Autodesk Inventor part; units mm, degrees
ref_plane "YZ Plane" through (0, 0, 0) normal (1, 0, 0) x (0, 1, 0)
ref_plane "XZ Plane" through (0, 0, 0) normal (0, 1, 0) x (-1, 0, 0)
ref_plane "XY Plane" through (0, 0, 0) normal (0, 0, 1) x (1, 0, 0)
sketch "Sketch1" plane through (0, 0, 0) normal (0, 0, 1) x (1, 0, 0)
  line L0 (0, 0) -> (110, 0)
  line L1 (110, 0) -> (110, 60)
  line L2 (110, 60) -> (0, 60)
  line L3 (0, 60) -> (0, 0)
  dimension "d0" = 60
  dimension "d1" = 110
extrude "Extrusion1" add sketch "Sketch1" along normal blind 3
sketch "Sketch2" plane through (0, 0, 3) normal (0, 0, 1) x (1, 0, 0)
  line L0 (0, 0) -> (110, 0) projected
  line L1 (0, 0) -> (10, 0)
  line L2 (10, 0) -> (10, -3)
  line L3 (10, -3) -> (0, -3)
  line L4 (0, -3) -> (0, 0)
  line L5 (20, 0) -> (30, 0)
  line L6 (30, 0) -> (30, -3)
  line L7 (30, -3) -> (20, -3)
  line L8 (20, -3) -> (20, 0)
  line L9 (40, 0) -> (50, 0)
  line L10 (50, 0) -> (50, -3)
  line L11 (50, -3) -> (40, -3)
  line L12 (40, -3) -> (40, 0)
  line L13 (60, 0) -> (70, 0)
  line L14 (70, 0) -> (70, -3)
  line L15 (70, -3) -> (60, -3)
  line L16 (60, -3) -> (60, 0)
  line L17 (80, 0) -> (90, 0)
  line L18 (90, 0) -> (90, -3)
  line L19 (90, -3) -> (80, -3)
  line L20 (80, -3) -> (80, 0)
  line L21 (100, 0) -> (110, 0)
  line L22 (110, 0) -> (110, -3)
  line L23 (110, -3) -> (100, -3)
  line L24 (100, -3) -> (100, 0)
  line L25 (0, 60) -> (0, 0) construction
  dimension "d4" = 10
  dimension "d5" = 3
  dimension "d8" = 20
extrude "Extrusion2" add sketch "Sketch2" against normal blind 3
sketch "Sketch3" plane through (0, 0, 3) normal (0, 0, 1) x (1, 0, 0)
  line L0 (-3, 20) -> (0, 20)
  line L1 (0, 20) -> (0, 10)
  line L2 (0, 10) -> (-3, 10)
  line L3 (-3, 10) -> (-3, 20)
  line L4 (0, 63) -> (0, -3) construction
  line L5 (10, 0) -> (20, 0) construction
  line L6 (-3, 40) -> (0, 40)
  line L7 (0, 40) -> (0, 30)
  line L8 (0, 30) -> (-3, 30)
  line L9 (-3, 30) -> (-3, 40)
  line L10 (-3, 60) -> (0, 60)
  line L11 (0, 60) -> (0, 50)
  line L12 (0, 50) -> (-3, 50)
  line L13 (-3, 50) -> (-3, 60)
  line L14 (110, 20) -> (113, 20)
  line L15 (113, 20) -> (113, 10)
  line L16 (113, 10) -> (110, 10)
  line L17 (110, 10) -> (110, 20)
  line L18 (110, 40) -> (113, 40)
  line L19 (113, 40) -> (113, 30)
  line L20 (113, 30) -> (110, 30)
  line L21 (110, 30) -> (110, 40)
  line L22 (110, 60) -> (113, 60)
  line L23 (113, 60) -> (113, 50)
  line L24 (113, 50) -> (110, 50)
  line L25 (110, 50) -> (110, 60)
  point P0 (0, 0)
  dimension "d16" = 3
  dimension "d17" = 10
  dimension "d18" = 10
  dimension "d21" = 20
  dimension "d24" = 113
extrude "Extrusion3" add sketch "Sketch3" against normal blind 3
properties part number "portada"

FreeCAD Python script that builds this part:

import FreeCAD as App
import Part
import Sketcher

doc = App.newDocument("Part")
body = doc.addObject("PartDesign::Body", "Body")

sketch1 = doc.addObject("Sketcher::SketchObject", "Sketch")
body.addObject(sketch1)
sketch1.AttachmentSupport = (doc.XY_Plane, [""])
sketch1.MapMode = "FlatFace"
sketch1.addGeometry([
    Part.LineSegment(App.Vector(0, 60, 0), App.Vector(0, 0, 0)),
    Part.LineSegment(App.Vector(0, 0, 0), App.Vector(110, 0, 0)),
    Part.LineSegment(App.Vector(110, 0, 0), App.Vector(110, 60, 0)),
    Part.LineSegment(App.Vector(110, 60, 0), App.Vector(0, 60, 0)),
], False)
sketch1.addConstraint([
    Sketcher.Constraint("Coincident", 0, 2, 1, 1),
    Sketcher.Constraint("Coincident", 1, 2, 2, 1),
    Sketcher.Constraint("Coincident", 2, 2, 3, 1),
    Sketcher.Constraint("Coincident", 3, 2, 0, 1),
    Sketcher.Constraint("Vertical", 0),
    Sketcher.Constraint("Horizontal", 1),
    Sketcher.Constraint("Vertical", 2),
    Sketcher.Constraint("Horizontal", 3),
    Sketcher.Constraint("Coincident", 0, 2, -1, 1),
    Sketcher.Constraint("DistanceX", 1, 1, 1, 2, 110.0),
    Sketcher.Constraint("DistanceY", 0, 2, 0, 1, 60.0),
])
pad1 = doc.addObject("PartDesign::Pad", "Pad")
body.addObject(pad1)
pad1.Profile = sketch1
pad1.Length = 3

sketch2 = doc.addObject("Sketcher::SketchObject", "Sketch001")
body.addObject(sketch2)
sketch2.AttachmentSupport = (doc.XY_Plane, [""])
sketch2.MapMode = "FlatFace"
sketch2.AttachmentOffset = App.Placement(App.Vector(0, 0, 3), App.Rotation())
sketch2.addGeometry([
    Part.LineSegment(App.Vector(110, 0, 0), App.Vector(100, 0, 0)),
    Part.LineSegment(App.Vector(100, 0, 0), App.Vector(100, -3, 0)),
    Part.LineSegment(App.Vector(100, -3, 0), App.Vector(110, -3, 0)),
    Part.LineSegment(App.Vector(110, -3, 0), App.Vector(110, 0, 0)),
    Part.LineSegment(App.Vector(90, 0, 0), App.Vector(80, 0, 0)),
    Part.LineSegment(App.Vector(80, 0, 0), App.Vector(80, -3, 0)),
    Part.LineSegment(App.Vector(80, -3, 0), App.Vector(90, -3, 0)),
    Part.LineSegment(App.Vector(90, -3, 0), App.Vector(90, 0, 0)),
    Part.LineSegment(App.Vector(70, 0, 0), App.Vector(60, 0, 0)),
    Part.LineSegment(App.Vector(60, 0, 0), App.Vector(60, -3, 0)),
    Part.LineSegment(App.Vector(60, -3, 0), App.Vector(70, -3, 0)),
    Part.LineSegment(App.Vector(70, -3, 0), App.Vector(70, 0, 0)),
    Part.LineSegment(App.Vector(50, 0, 0), App.Vector(40, 0, 0)),
    Part.LineSegment(App.Vector(40, 0, 0), App.Vector(40, -3, 0)),
    Part.LineSegment(App.Vector(40, -3, 0), App.Vector(50, -3, 0)),
    Part.LineSegment(App.Vector(50, -3, 0), App.Vector(50, 0, 0)),
    Part.LineSegment(App.Vector(30, 0, 0), App.Vector(20, 0, 0)),
    Part.LineSegment(App.Vector(20, 0, 0), App.Vector(20, -3, 0)),
    Part.LineSegment(App.Vector(20, -3, 0), App.Vector(30, -3, 0)),
    Part.LineSegment(App.Vector(30, -3, 0), App.Vector(30, 0, 0)),
    Part.LineSegment(App.Vector(10, 0, 0), App.Vector(0, 0, 0)),
    Part.LineSegment(App.Vector(0, 0, 0), App.Vector(0, -3, 0)),
    Part.LineSegment(App.Vector(0, -3, 0), App.Vector(10, -3, 0)),
    Part.LineSegment(App.Vector(10, -3, 0), App.Vector(10, 0, 0)),
], False)
sketch2.addConstraint([
    Sketcher.Constraint("Coincident", 0, 2, 1, 1),
    Sketcher.Constraint("Coincident", 1, 2, 2, 1),
    Sketcher.Constraint("Coincident", 2, 2, 3, 1),
    Sketcher.Constraint("Coincident", 3, 2, 0, 1),
    Sketcher.Constraint("Coincident", 4, 2, 5, 1),
    Sketcher.Constraint("Coincident", 5, 2, 6, 1),
    Sketcher.Constraint("Coincident", 6, 2, 7, 1),
    Sketcher.Constraint("Coincident", 7, 2, 4, 1),
    Sketcher.Constraint("Coincident", 8, 2, 9, 1),
    Sketcher.Constraint("Coincident", 9, 2, 10, 1),
    Sketcher.Constraint("Coincident", 10, 2, 11, 1),
    Sketcher.Constraint("Coincident", 11, 2, 8, 1),
    Sketcher.Constraint("Coincident", 12, 2, 13, 1),
    Sketcher.Constraint("Coincident", 13, 2, 14, 1),
    Sketcher.Constraint("Coincident", 14, 2, 15, 1),
    Sketcher.Constraint("Coincident", 15, 2, 12, 1),
    Sketcher.Constraint("Coincident", 16, 2, 17, 1),
    Sketcher.Constraint("Coincident", 17, 2, 18, 1),
    Sketcher.Constraint("Coincident", 18, 2, 19, 1),
    Sketcher.Constraint("Coincident", 19, 2, 16, 1),
    Sketcher.Constraint("Coincident", 20, 2, 21, 1),
    Sketcher.Constraint("Coincident", 21, 2, 22, 1),
    Sketcher.Constraint("Coincident", 22, 2, 23, 1),
    Sketcher.Constraint("Coincident", 23, 2, 20, 1),
    Sketcher.Constraint("Horizontal", 0),
    Sketcher.Constraint("Vertical", 1),
    Sketcher.Constraint("Horizontal", 2),
    Sketcher.Constraint("Vertical", 3),
    Sketcher.Constraint("Horizontal", 4),
    Sketcher.Constraint("Vertical", 5),
    Sketcher.Constraint("Horizontal", 6),
    Sketcher.Constraint("Vertical", 7),
    Sketcher.Constraint("Horizontal", 8),
    Sketcher.Constraint("Vertical", 9),
    Sketcher.Constraint("Horizontal", 10),
    Sketcher.Constraint("Vertical", 11),
    Sketcher.Constraint("Horizontal", 12),
    Sketcher.Constraint("Vertical", 13),
    Sketcher.Constraint("Horizontal", 14),
    Sketcher.Constraint("Vertical", 15),
    Sketcher.Constraint("Horizontal", 16),
    Sketcher.Constraint("Vertical", 17),
    Sketcher.Constraint("Horizontal", 18),
    Sketcher.Constraint("Vertical", 19),
    Sketcher.Constraint("Horizontal", 20),
    Sketcher.Constraint("Vertical", 21),
    Sketcher.Constraint("Horizontal", 22),
    Sketcher.Constraint("Vertical", 23),
    Sketcher.Constraint("Coincident", 20, 2, -1, 1),
    Sketcher.Constraint("PointOnObject", 0, 2, -1),
    Sketcher.Constraint("PointOnObject", 4, 2, -1),
    Sketcher.Constraint("PointOnObject", 8, 2, -1),
    Sketcher.Constraint("PointOnObject", 12, 2, -1),
    Sketcher.Constraint("PointOnObject", 16, 2, -1),
    Sketcher.Constraint("Horizontal", 2, 2, 5, 2),
    Sketcher.Constraint("Horizontal", 6, 2, 9, 2),
    Sketcher.Constraint("Horizontal", 10, 2, 13, 2),
    Sketcher.Constraint("Horizontal", 14, 2, 17, 2),
    Sketcher.Constraint("Horizontal", 18, 2, 21, 2),
    Sketcher.Constraint("Equal", 2, 4),
    Sketcher.Constraint("Equal", 6, 8),
    Sketcher.Constraint("Equal", 10, 12),
    Sketcher.Constraint("Equal", 14, 16),
    Sketcher.Constraint("Equal", 18, 20),
    Sketcher.Constraint("DistanceX", 0, 2, 0, 1, 10.0),
    Sketcher.Constraint("DistanceY", 1, 2, 1, 1, 3.0),
    Sketcher.Constraint("DistanceX", -1, 1, 16, 2, 20.0),
    Sketcher.Constraint("DistanceX", 4, 2, 0, 2, 20.0),
    Sketcher.Constraint("DistanceX", 8, 2, 4, 2, 20.0),
    Sketcher.Constraint("DistanceX", 12, 2, 8, 2, 20.0),
    Sketcher.Constraint("DistanceX", 16, 2, 12, 2, 20.0),
])
pad2 = doc.addObject("PartDesign::Pad", "Pad001")
body.addObject(pad2)
pad2.Profile = sketch2
pad2.Length = 3
pad2.Reversed = True

sketch3 = doc.addObject("Sketcher::SketchObject", "Sketch002")
body.addObject(sketch3)
sketch3.AttachmentSupport = (doc.XY_Plane, [""])
sketch3.MapMode = "FlatFace"
sketch3.AttachmentOffset = App.Placement(App.Vector(0, 0, 3), App.Rotation())
sketch3.addGeometry([
    Part.LineSegment(App.Vector(0, 20, 0), App.Vector(-3, 20, 0)),
    Part.LineSegment(App.Vector(-3, 20, 0), App.Vector(-3, 10, 0)),
    Part.LineSegment(App.Vector(-3, 10, 0), App.Vector(0, 10, 0)),
    Part.LineSegment(App.Vector(0, 10, 0), App.Vector(0, 20, 0)),
    Part.LineSegment(App.Vector(0, 40, 0), App.Vector(-3, 40, 0)),
    Part.LineSegment(App.Vector(-3, 40, 0), App.Vector(-3, 30, 0)),
    Part.LineSegment(App.Vector(-3, 30, 0), App.Vector(0, 30, 0)),
    Part.LineSegment(App.Vector(0, 30, 0), App.Vector(0, 40, 0)),
    Part.LineSegment(App.Vector(0, 60, 0), App.Vector(-3, 60, 0)),
    Part.LineSegment(App.Vector(-3, 60, 0), App.Vector(-3, 50, 0)),
    Part.LineSegment(App.Vector(-3, 50, 0), App.Vector(0, 50, 0)),
    Part.LineSegment(App.Vector(0, 50, 0), App.Vector(0, 60, 0)),
    Part.LineSegment(App.Vector(113, 20, 0), App.Vector(110, 20, 0)),
    Part.LineSegment(App.Vector(110, 20, 0), App.Vector(110, 10, 0)),
    Part.LineSegment(App.Vector(110, 10, 0), App.Vector(113, 10, 0)),
    Part.LineSegment(App.Vector(113, 10, 0), App.Vector(113, 20, 0)),
    Part.LineSegment(App.Vector(113, 40, 0), App.Vector(110, 40, 0)),
    Part.LineSegment(App.Vector(110, 40, 0), App.Vector(110, 30, 0)),
    Part.LineSegment(App.Vector(110, 30, 0), App.Vector(113, 30, 0)),
    Part.LineSegment(App.Vector(113, 30, 0), App.Vector(113, 40, 0)),
    Part.LineSegment(App.Vector(113, 60, 0), App.Vector(110, 60, 0)),
    Part.LineSegment(App.Vector(110, 60, 0), App.Vector(110, 50, 0)),
    Part.LineSegment(App.Vector(110, 50, 0), App.Vector(113, 50, 0)),
    Part.LineSegment(App.Vector(113, 50, 0), App.Vector(113, 60, 0)),
], False)
sketch3.addConstraint([
    Sketcher.Constraint("Coincident", 0, 2, 1, 1),
    Sketcher.Constraint("Coincident", 1, 2, 2, 1),
    Sketcher.Constraint("Coincident", 2, 2, 3, 1),
    Sketcher.Constraint("Coincident", 3, 2, 0, 1),
    Sketcher.Constraint("Coincident", 4, 2, 5, 1),
    Sketcher.Constraint("Coincident", 5, 2, 6, 1),
    Sketcher.Constraint("Coincident", 6, 2, 7, 1),
    Sketcher.Constraint("Coincident", 7, 2, 4, 1),
    Sketcher.Constraint("Coincident", 8, 2, 9, 1),
    Sketcher.Constraint("Coincident", 9, 2, 10, 1),
    Sketcher.Constraint("Coincident", 10, 2, 11, 1),
    Sketcher.Constraint("Coincident", 11, 2, 8, 1),
    Sketcher.Constraint("Coincident", 12, 2, 13, 1),
    Sketcher.Constraint("Coincident", 13, 2, 14, 1),
    Sketcher.Constraint("Coincident", 14, 2, 15, 1),
    Sketcher.Constraint("Coincident", 15, 2, 12, 1),
    Sketcher.Constraint("Coincident", 16, 2, 17, 1),
    Sketcher.Constraint("Coincident", 17, 2, 18, 1),
    Sketcher.Constraint("Coincident", 18, 2, 19, 1),
    Sketcher.Constraint("Coincident", 19, 2, 16, 1),
    Sketcher.Constraint("Coincident", 20, 2, 21, 1),
    Sketcher.Constraint("Coincident", 21, 2, 22, 1),
    Sketcher.Constraint("Coincident", 22, 2, 23, 1),
    Sketcher.Constraint("Coincident", 23, 2, 20, 1),
    Sketcher.Constraint("Horizontal", 0),
    Sketcher.Constraint("Vertical", 1),
    Sketcher.Constraint("Horizontal", 2),
    Sketcher.Constraint("Vertical", 3),
    Sketcher.Constraint("Horizontal", 4),
    Sketcher.Constraint("Vertical", 5),
    Sketcher.Constraint("Horizontal", 6),
    Sketcher.Constraint("Vertical", 7),
    Sketcher.Constraint("Horizontal", 8),
    Sketcher.Constraint("Vertical", 9),
    Sketcher.Constraint("Horizontal", 10),
    Sketcher.Constraint("Vertical", 11),
    Sketcher.Constraint("Horizontal", 12),
    Sketcher.Constraint("Vertical", 13),
    Sketcher.Constraint("Horizontal", 14),
    Sketcher.Constraint("Vertical", 15),
    Sketcher.Constraint("Horizontal", 16),
    Sketcher.Constraint("Vertical", 17),
    Sketcher.Constraint("Horizontal", 18),
    Sketcher.Constraint("Vertical", 19),
    Sketcher.Constraint("Horizontal", 20),
    Sketcher.Constraint("Vertical", 21),
    Sketcher.Constraint("Horizontal", 22),
    Sketcher.Constraint("Vertical", 23),
    Sketcher.Constraint("PointOnObject", 2, 2, -2),
    Sketcher.Constraint("PointOnObject", 6, 2, -2),
    Sketcher.Constraint("PointOnObject", 10, 2, -2),
    Sketcher.Constraint("Horizontal", 3, 2, 12, 2),
    Sketcher.Constraint("Horizontal", 2, 2, 13, 2),
    Sketcher.Constraint("Horizontal", 7, 2, 16, 2),
    Sketcher.Constraint("Horizontal", 6, 2, 17, 2),
    Sketcher.Constraint("Horizontal", 11, 2, 20, 2),
    Sketcher.Constraint("Horizontal", 10, 2, 21, 2),
    Sketcher.Constraint("Vertical", 1, 2, 4, 2),
    Sketcher.Constraint("Vertical", 5, 2, 8, 2),
    Sketcher.Constraint("Vertical", 13, 2, 16, 2),
    Sketcher.Constraint("Vertical", 15, 2, 18, 2),
    Sketcher.Constraint("Vertical", 17, 2, 20, 2),
    Sketcher.Constraint("Vertical", 19, 2, 22, 2),
    Sketcher.Constraint("Equal", 10, 12),
    Sketcher.Constraint("Equal", 3, 5),
    Sketcher.Constraint("Equal", 7, 9),
    Sketcher.Constraint("DistanceX", 0, 2, 0, 1, 3.0),
    Sketcher.Constraint("DistanceY", 1, 2, 1, 1, 10.0),
    Sketcher.Constraint("DistanceY", -1, 1, 0, 2, 20.0),
    Sketcher.Constraint("DistanceX", -1, 1, 14, 2, 113.0),
    Sketcher.Constraint("DistanceY", 0, 2, 4, 2, 20.0),
    Sketcher.Constraint("DistanceY", 4, 2, 8, 2, 20.0),
])
pad3 = doc.addObject("PartDesign::Pad", "Pad002")
body.addObject(pad3)
pad3.Profile = sketch3
pad3.Length = 3
pad3.Reversed = True

doc.recompute()
